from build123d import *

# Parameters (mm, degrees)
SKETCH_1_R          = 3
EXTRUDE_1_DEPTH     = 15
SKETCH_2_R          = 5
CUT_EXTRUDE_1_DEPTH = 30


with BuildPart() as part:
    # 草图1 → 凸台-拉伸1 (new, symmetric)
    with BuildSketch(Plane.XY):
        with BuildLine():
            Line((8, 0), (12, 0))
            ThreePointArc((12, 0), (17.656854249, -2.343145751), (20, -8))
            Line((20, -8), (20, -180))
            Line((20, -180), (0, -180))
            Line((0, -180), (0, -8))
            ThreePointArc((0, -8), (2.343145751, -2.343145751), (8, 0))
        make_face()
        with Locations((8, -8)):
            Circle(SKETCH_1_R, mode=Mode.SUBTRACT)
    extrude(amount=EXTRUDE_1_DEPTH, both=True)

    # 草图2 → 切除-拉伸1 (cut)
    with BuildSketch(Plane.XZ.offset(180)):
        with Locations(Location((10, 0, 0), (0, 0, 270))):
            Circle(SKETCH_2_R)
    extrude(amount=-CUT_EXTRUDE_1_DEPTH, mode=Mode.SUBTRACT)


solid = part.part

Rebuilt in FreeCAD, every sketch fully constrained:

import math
import FreeCAD as App
import Part
import Sketcher
from FreeCAD import Vector
Q = App.Units.Quantity

doc = App.newDocument("Part")
params = doc.addObject("Spreadsheet::Sheet", "Params")
for row, (alias, value) in enumerate([
    ("sketch1_diameter", "6 mm"),
    ("sketch1_radius", "8 mm"),
    ("sketch1_width", "4 mm"),
    ("sketch1_height", "172 mm"),
    ("pad1_length", "30 mm"),
    ("sketch2_diameter", "10 mm"),
    ("pocket1_length", "30 mm"),
], start=1):
    params.set(f"A{row}", alias)
    params.set(f"B{row}", "=" + value)
    params.setAlias(f"B{row}", alias)

body = doc.addObject("PartDesign::Body", "Body")

# Sketch on XY plane
sketch1 = doc.addObject("Sketcher::SketchObject", "Sketch")
body.addObject(sketch1)
sketch1.AttachmentSupport = (doc.XY_Plane, [""])
sketch1.MapMode = "FlatFace"
sketch1.addGeometry([
    Part.LineSegment(Vector(12, 0, 0), Vector(8, 0, 0)),  # 0
    Part.ArcOfCircle(Part.Circle(Vector(8, -8, 0), Vector(0, 0, 1), 8), math.radians(90), math.radians(180)),  # 1
    Part.LineSegment(Vector(0, -8, 0), Vector(0, -180, 0)),  # 2
    Part.LineSegment(Vector(0, -180, 0), Vector(20, -180, 0)),  # 3
    Part.LineSegment(Vector(20, -180, 0), Vector(20, -8, 0)),  # 4
    Part.ArcOfCircle(Part.Circle(Vector(12, -8, 0), Vector(0, 0, 1), 8), math.radians(0), math.radians(90)),  # 5
    Part.Circle(Vector(8, -8, 0), Vector(0, 0, 1), 3),  # 6
], False)
sketch1.addConstraint([
    Sketcher.Constraint("Tangent", 0, 2, 1, 1),
    Sketcher.Constraint("Tangent", 1, 2, 2, 1),
    Sketcher.Constraint("Coincident", 2, 2, 3, 1),
    Sketcher.Constraint("Coincident", 3, 2, 4, 1),
    Sketcher.Constraint("Tangent", 4, 2, 5, 1),
    Sketcher.Constraint("Tangent", 5, 2, 0, 1),
    Sketcher.Constraint("Horizontal", 0),
    Sketcher.Constraint("Vertical", 2),
    Sketcher.Constraint("Horizontal", 3),
    Sketcher.Constraint("Vertical", 4),
    Sketcher.Constraint("Coincident", 6, 3, 1, 3),
    Sketcher.Constraint("Equal", 1, 5),
    Sketcher.Constraint("PointOnObject", 0, 2, -1),
    Sketcher.Constraint("PointOnObject", 1, 2, -2),
    Sketcher.Constraint("Diameter", 6, Q("6 mm")),
    Sketcher.Constraint("Radius", 1, Q("8 mm")),
    Sketcher.Constraint("DistanceX", 0, 2, 0, 1, Q("4 mm")),
    Sketcher.Constraint("DistanceY", 2, 2, 2, 1, Q("172 mm")),
])
sketch1.setExpression("Constraints[14]", "Params.sketch1_diameter")
sketch1.setExpression("Constraints[15]", "Params.sketch1_radius")
sketch1.setExpression("Constraints[16]", "Params.sketch1_width")
sketch1.setExpression("Constraints[17]", "Params.sketch1_height")
pad1 = doc.addObject("PartDesign::Pad", "Pad")
body.addObject(pad1)
pad1.Profile = sketch1
pad1.setExpression("Length", "Params.pad1_length")
pad1.Midplane = True

# Sketch on XZ plane
sketch2 = doc.addObject("Sketcher::SketchObject", "Sketch001")
body.addObject(sketch2)
sketch2.AttachmentSupport = (doc.XZ_Plane, [""])
sketch2.MapMode = "FlatFace"
sketch2.AttachmentOffset = App.Placement(Vector(0, 0, 180), App.Rotation())
sketch2.addGeometry(Part.Circle(Vector(10, 0, 0), Vector(0, 0, 1), 5), False)
sketch2.addConstraint([
    Sketcher.Constraint("PointOnObject", 0, 3, -1),
    Sketcher.Constraint("Diameter", 0, Q("10 mm")),
    Sketcher.Constraint("DistanceX", -1, 1, 0, 3, Q("10 mm")),
])
sketch2.setExpression("Constraints[1]", "Params.sketch2_diameter")
pocket1 = doc.addObject("PartDesign::Pocket", "Pocket")
body.addObject(pocket1)
pocket1.Profile = sketch2
pocket1.setExpression("Length", "Params.pocket1_length")

doc.recompute()
